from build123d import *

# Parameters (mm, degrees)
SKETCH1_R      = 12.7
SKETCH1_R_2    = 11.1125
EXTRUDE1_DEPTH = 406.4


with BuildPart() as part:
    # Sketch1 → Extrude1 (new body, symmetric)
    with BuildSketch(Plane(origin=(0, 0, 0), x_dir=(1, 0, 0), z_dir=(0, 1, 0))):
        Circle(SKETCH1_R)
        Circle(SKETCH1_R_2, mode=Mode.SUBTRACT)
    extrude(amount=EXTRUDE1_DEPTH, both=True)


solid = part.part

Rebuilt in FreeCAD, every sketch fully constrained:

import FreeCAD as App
import Part
import Sketcher
Q = App.Units.Quantity

doc = App.newDocument("Part")
body = doc.addObject("PartDesign::Body", "Body")

# Sketch on XZ plane
sketch1 = body.newObject("Sketcher::SketchObject", "Sketch")
sketch1.AttachmentSupport = (doc.getObject("XZ_Plane"), [""])
sketch1.MapMode = "FlatFace"
sketch1.addGeometry([
    Part.Circle(App.Vector(0, 0, 0), App.Vector(0, 0, 1), 13),
    Part.Circle(App.Vector(0, 0, 0), App.Vector(0, 0, 1), 11),
], False)
sketch1.addConstraint([
    Sketcher.Constraint("Coincident", 0, 3, -1, 1),
    Sketcher.Constraint("Coincident", 1, 3, -1, 1),
    Sketcher.Constraint("Diameter", 0, Q("1 in")),
    Sketcher.Constraint("Diameter", 1, Q("0.875 in")),
])
pad1 = body.newObject("PartDesign::Pad", "Pad")
pad1.Profile = sketch1
pad1.Length = Q("32 in")
pad1.Midplane = True

doc.recompute()
